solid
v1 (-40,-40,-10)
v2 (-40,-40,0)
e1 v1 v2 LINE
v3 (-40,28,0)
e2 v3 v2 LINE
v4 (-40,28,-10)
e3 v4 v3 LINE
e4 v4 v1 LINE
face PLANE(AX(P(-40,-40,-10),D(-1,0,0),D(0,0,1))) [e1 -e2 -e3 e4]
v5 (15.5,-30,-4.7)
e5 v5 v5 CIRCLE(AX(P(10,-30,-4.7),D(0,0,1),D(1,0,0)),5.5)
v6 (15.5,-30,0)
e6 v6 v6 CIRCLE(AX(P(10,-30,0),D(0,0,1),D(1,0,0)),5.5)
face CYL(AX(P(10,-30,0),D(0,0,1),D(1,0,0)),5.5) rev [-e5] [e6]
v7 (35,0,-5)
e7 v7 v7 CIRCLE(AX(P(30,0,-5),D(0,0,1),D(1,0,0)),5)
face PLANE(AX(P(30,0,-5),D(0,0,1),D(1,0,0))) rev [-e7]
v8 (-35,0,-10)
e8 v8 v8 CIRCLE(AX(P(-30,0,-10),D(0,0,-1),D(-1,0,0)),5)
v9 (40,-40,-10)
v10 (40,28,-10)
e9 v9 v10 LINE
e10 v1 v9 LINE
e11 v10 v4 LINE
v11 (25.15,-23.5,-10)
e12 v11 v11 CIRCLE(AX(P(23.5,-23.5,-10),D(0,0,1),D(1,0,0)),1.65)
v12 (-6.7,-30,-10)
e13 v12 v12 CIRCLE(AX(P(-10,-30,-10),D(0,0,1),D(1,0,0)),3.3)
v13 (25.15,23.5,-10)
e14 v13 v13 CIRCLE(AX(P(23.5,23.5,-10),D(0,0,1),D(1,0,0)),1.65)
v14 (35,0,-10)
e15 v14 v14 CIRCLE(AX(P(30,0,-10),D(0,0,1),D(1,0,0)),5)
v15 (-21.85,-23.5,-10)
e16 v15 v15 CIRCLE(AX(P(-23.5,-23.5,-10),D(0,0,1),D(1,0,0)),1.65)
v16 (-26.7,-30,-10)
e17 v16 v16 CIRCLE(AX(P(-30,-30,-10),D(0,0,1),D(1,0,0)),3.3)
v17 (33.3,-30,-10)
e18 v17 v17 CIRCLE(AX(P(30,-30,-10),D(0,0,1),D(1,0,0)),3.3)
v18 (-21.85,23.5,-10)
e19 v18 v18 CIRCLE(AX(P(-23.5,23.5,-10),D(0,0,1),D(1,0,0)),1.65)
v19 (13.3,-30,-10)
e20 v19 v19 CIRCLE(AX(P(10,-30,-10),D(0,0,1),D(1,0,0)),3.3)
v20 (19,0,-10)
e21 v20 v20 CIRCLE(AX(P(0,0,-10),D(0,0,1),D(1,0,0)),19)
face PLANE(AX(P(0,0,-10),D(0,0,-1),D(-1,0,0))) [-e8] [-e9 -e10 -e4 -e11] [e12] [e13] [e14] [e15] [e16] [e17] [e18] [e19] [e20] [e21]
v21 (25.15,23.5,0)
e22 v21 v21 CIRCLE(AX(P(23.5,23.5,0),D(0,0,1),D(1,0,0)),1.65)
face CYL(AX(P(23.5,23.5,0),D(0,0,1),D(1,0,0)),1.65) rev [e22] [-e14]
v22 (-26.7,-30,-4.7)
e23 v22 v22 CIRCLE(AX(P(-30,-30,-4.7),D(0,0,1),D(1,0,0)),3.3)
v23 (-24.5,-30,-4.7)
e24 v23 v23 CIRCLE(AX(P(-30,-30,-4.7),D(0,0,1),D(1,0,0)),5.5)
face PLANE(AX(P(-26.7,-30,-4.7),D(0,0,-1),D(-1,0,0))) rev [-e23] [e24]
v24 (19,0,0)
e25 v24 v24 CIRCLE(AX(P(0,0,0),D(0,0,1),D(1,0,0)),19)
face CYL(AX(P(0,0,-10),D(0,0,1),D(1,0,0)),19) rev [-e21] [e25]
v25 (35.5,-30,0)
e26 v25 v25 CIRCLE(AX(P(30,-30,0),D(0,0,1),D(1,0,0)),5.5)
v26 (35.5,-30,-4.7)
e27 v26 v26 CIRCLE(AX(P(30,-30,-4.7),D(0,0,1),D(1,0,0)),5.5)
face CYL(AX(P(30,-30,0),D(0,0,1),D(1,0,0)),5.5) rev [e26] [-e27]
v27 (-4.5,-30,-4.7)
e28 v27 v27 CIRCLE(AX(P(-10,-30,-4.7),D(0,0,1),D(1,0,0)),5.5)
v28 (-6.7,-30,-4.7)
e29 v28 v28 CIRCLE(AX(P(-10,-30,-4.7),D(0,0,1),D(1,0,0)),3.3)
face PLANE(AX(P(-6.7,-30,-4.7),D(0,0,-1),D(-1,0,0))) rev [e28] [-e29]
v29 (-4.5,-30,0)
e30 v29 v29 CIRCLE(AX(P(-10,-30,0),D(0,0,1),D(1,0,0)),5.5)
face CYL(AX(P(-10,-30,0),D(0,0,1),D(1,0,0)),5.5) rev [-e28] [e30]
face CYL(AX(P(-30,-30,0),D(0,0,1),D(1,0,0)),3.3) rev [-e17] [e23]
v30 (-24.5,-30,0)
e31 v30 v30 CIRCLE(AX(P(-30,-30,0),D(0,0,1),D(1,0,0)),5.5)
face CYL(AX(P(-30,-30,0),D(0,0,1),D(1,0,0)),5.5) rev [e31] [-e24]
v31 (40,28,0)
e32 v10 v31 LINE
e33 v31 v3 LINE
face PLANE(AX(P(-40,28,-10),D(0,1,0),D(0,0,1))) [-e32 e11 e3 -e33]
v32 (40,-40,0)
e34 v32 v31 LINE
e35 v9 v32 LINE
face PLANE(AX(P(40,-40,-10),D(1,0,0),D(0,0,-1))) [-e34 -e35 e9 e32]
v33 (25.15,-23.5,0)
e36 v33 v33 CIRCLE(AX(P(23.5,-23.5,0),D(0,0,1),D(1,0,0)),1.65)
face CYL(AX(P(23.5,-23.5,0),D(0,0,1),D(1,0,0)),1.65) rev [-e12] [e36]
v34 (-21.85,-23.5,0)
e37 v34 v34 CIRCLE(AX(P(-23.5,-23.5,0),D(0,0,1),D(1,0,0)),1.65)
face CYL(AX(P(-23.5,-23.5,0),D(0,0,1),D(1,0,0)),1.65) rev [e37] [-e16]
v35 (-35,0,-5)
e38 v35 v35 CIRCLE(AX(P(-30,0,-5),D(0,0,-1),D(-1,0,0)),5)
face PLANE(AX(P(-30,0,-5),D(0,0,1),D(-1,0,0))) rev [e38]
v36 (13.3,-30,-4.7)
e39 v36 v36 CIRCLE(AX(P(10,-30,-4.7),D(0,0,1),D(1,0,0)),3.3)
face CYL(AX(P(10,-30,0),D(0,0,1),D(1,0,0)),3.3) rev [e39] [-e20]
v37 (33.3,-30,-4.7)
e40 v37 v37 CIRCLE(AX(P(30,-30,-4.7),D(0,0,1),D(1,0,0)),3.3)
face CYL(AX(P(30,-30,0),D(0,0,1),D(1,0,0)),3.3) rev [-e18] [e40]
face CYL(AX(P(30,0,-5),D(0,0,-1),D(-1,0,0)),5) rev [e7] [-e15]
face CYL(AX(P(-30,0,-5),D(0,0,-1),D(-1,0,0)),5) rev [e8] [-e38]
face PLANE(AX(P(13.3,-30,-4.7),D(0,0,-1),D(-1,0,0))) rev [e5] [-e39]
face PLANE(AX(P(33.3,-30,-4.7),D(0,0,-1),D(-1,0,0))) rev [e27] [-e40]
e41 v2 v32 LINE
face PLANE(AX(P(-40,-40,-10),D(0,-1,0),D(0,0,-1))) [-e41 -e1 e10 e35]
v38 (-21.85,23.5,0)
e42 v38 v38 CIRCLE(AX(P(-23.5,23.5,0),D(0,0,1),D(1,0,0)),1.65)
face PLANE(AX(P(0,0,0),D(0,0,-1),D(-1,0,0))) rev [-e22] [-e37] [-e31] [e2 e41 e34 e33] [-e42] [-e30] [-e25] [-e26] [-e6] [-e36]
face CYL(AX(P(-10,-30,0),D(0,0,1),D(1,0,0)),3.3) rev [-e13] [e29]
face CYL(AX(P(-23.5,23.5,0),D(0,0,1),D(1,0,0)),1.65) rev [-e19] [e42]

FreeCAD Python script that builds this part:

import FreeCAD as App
import Part
import Sketcher
from FreeCAD import Vector
Q = App.Units.Quantity


def add_polygon(sketch, points):
    """Adds a closed chain of lines whose ends are joined by coincident constraints."""
    first, n = sketch.GeometryCount, len(points)
    for a, b in zip(points, points[1:] + points[:1]):
        sketch.addGeometry(Part.LineSegment(App.Vector(*a, 0), App.Vector(*b, 0)), False)
    for i in range(n):
        sketch.addConstraint(Sketcher.Constraint("Coincident", first + i, 2, first + (i + 1) % n, 1))

doc = App.newDocument("Part")
body = doc.addObject("PartDesign::Body", "Body")

sketch1 = doc.addObject("Sketcher::SketchObject", "Sketch")
body.addObject(sketch1)
sketch1.AttachmentSupport = (doc.XY_Plane, [""])
sketch1.MapMode = "FlatFace"
add_polygon(sketch1, [(-40, 28), (-40, -40), (40, -40), (40, 28)])
sketch1.addConstraint(Sketcher.Constraint("Vertical", 0))
sketch1.addConstraint(Sketcher.Constraint("Horizontal", 1))
sketch1.addConstraint(Sketcher.Constraint("Vertical", 2))
sketch1.addConstraint(Sketcher.Constraint("Horizontal", 3))
sketch1.addConstraint(Sketcher.Constraint("DistanceX", 1, 1, 1, 2, Q("80 mm")))
sketch1.addConstraint(Sketcher.Constraint("DistanceY", 0, 2, 0, 1, Q("68 mm")))
sketch1.addConstraint(Sketcher.Constraint("DistanceX", 0, 2, -1, 1, Q("40 mm")))
sketch1.addConstraint(Sketcher.Constraint("DistanceY", 0, 2, -1, 1, Q("40 mm")))
pad1 = doc.addObject("PartDesign::Pad", "Pad")
body.addObject(pad1)
pad1.Profile = sketch1
pad1.Length = 10
pad1.Reversed = True

sketch2 = doc.addObject("Sketcher::SketchObject", "Sketch001")
body.addObject(sketch2)
sketch2.AttachmentSupport = (doc.XY_Plane, [""])
sketch2.MapMode = "FlatFace"
sketch2.addGeometry(Part.Circle(Vector(0, 0, 0), Vector(0, 0, 1), 19), False)
sketch2.addConstraint(Sketcher.Constraint("Coincident", 0, 3, -1, 1))
sketch2.addConstraint(Sketcher.Constraint("Diameter", 0, Q("38 mm")))
pocket1 = doc.addObject("PartDesign::Pocket", "Pocket")
body.addObject(pocket1)
pocket1.Profile = sketch2
pocket1.Length = 10

sketch3 = doc.addObject("Sketcher::SketchObject", "Sketch002")
body.addObject(sketch3)
sketch3.AttachmentSupport = (doc.XY_Plane, [""])
sketch3.MapMode = "FlatFace"
sketch3.addGeometry(Part.Circle(Vector(30, -30, 0), Vector(0, 0, 1), 3.3), False)
sketch3.addGeometry(Part.Circle(Vector(-30, -30, 0), Vector(0, 0, 1), 3.3), False)
sketch3.addGeometry(Part.Circle(Vector(10, -30, 0), Vector(0, 0, 1), 3.3), False)
sketch3.addGeometry(Part.Circle(Vector(-10, -30, 0), Vector(0, 0, 1), 3.3), False)
sketch3.addConstraint(Sketcher.Constraint("Equal", 0, 1))
sketch3.addConstraint(Sketcher.Constraint("Equal", 1, 2))
sketch3.addConstraint(Sketcher.Constraint("Equal", 2, 3))
sketch3.addConstraint(Sketcher.Constraint("Symmetric", 0, 3, 1, 3, -2))
sketch3.addConstraint(Sketcher.Constraint("Symmetric", 2, 3, 3, 3, -2))
sketch3.addConstraint(Sketcher.Constraint("Horizontal", 1, 3, 2, 3))
sketch3.addConstraint(Sketcher.Constraint("Diameter", 0, Q("6.6 mm")))
sketch3.addConstraint(Sketcher.Constraint("DistanceX", -1, 1, 0, 3, Q("30 mm")))
sketch3.addConstraint(Sketcher.Constraint("DistanceY", 0, 3, -1, 1, Q("30 mm")))
sketch3.addConstraint(Sketcher.Constraint("DistanceX", -1, 1, 2, 3, Q("10 mm")))
doc.recompute()
hole = doc.addObject("PartDesign::Hole", "Hole")
body.addObject(hole)
hole.Profile = sketch3
hole.ThreadType = "None"
hole.Diameter = 6.6
hole.DepthType = "ThroughAll"
hole.HoleCutType = "Counterbore"
hole.HoleCutDiameter = 11
hole.HoleCutDepth = 4.7

sketch4 = doc.addObject("Sketcher::SketchObject", "Sketch003")
body.addObject(sketch4)
sketch4.AttachmentSupport = (doc.XY_Plane, [""])
sketch4.MapMode = "FlatFace"
sketch4.addGeometry(Part.Circle(Vector(23.5, -23.5, 0), Vector(0, 0, 1), 1.6), False)
sketch4.addGeometry(Part.Circle(Vector(0, 0, 0), Vector(0, 0, 1), 1.6), False)
sketch4.addGeometry(Part.Circle(Vector(23.5, 23.5, 0), Vector(0, 0, 1), 1.6), False)
sketch4.addGeometry(Part.Circle(Vector(-23.5, -23.5, 0), Vector(0, 0, 1), 1.6), False)
sketch4.addGeometry(Part.Circle(Vector(-23.5, 23.5, 0), Vector(0, 0, 1), 1.6), False)
sketch4.addConstraint(Sketcher.Constraint("Coincident", 1, 3, -1, 1))
sketch4.addConstraint(Sketcher.Constraint("Equal", 0, 1))
sketch4.addConstraint(Sketcher.Constraint("Equal", 1, 2))
sketch4.addConstraint(Sketcher.Constraint("Equal", 2, 3))
sketch4.addConstraint(Sketcher.Constraint("Equal", 3, 4))
sketch4.addConstraint(Sketcher.Constraint("Symmetric", 2, 3, 3, 3, -1, 1))
sketch4.addConstraint(Sketcher.Constraint("Symmetric", 0, 3, 4, 3, -1, 1))
sketch4.addConstraint(Sketcher.Constraint("Symmetric", 0, 3, 3, 3, -2))
sketch4.addConstraint(Sketcher.Constraint("Diameter", 0, Q("3.3 mm")))
sketch4.addConstraint(Sketcher.Constraint("DistanceY", 0, 3, 2, 3, Q("47 mm")))
sketch4.addConstraint(Sketcher.Constraint("DistanceX", 3, 3, 0, 3, Q("47 mm")))
doc.recompute()
hole2 = doc.addObject("PartDesign::Hole", "Hole001")
body.addObject(hole2)
hole2.Profile = sketch4
hole2.ThreadType = "None"
hole2.Diameter = 3.3
hole2.DepthType = "ThroughAll"

sketch5 = doc.addObject("Sketcher::SketchObject", "Sketch004")
body.addObject(sketch5)
sketch5.AttachmentSupport = (doc.XY_Plane, [""])
sketch5.MapMode = "FlatFace"
sketch5.AttachmentOffset = App.Placement(Vector(0, 0, -10), App.Rotation())
sketch5.addGeometry(Part.Circle(Vector(30, 0, 0), Vector(0, 0, 1), 5), False)
sketch5.addConstraint(Sketcher.Constraint("PointOnObject", 0, 3, -1))
sketch5.addConstraint(Sketcher.Constraint("Diameter", 0, Q("10 mm")))
sketch5.addConstraint(Sketcher.Constraint("DistanceX", -1, 1, 0, 3, Q("30 mm")))
pocket2 = doc.addObject("PartDesign::Pocket", "Pocket001")
body.addObject(pocket2)
pocket2.Profile = sketch5
pocket2.Length = 5
pocket2.Reversed = True
doc.recompute()

mirrored = doc.addObject("PartDesign::Mirrored", "Mirrored")
body.addObject(mirrored)
mirrored.Originals = [pocket2]
mirrored.MirrorPlane = (doc.YZ_Plane, [""])
body.Tip = mirrored

doc.recompute()
